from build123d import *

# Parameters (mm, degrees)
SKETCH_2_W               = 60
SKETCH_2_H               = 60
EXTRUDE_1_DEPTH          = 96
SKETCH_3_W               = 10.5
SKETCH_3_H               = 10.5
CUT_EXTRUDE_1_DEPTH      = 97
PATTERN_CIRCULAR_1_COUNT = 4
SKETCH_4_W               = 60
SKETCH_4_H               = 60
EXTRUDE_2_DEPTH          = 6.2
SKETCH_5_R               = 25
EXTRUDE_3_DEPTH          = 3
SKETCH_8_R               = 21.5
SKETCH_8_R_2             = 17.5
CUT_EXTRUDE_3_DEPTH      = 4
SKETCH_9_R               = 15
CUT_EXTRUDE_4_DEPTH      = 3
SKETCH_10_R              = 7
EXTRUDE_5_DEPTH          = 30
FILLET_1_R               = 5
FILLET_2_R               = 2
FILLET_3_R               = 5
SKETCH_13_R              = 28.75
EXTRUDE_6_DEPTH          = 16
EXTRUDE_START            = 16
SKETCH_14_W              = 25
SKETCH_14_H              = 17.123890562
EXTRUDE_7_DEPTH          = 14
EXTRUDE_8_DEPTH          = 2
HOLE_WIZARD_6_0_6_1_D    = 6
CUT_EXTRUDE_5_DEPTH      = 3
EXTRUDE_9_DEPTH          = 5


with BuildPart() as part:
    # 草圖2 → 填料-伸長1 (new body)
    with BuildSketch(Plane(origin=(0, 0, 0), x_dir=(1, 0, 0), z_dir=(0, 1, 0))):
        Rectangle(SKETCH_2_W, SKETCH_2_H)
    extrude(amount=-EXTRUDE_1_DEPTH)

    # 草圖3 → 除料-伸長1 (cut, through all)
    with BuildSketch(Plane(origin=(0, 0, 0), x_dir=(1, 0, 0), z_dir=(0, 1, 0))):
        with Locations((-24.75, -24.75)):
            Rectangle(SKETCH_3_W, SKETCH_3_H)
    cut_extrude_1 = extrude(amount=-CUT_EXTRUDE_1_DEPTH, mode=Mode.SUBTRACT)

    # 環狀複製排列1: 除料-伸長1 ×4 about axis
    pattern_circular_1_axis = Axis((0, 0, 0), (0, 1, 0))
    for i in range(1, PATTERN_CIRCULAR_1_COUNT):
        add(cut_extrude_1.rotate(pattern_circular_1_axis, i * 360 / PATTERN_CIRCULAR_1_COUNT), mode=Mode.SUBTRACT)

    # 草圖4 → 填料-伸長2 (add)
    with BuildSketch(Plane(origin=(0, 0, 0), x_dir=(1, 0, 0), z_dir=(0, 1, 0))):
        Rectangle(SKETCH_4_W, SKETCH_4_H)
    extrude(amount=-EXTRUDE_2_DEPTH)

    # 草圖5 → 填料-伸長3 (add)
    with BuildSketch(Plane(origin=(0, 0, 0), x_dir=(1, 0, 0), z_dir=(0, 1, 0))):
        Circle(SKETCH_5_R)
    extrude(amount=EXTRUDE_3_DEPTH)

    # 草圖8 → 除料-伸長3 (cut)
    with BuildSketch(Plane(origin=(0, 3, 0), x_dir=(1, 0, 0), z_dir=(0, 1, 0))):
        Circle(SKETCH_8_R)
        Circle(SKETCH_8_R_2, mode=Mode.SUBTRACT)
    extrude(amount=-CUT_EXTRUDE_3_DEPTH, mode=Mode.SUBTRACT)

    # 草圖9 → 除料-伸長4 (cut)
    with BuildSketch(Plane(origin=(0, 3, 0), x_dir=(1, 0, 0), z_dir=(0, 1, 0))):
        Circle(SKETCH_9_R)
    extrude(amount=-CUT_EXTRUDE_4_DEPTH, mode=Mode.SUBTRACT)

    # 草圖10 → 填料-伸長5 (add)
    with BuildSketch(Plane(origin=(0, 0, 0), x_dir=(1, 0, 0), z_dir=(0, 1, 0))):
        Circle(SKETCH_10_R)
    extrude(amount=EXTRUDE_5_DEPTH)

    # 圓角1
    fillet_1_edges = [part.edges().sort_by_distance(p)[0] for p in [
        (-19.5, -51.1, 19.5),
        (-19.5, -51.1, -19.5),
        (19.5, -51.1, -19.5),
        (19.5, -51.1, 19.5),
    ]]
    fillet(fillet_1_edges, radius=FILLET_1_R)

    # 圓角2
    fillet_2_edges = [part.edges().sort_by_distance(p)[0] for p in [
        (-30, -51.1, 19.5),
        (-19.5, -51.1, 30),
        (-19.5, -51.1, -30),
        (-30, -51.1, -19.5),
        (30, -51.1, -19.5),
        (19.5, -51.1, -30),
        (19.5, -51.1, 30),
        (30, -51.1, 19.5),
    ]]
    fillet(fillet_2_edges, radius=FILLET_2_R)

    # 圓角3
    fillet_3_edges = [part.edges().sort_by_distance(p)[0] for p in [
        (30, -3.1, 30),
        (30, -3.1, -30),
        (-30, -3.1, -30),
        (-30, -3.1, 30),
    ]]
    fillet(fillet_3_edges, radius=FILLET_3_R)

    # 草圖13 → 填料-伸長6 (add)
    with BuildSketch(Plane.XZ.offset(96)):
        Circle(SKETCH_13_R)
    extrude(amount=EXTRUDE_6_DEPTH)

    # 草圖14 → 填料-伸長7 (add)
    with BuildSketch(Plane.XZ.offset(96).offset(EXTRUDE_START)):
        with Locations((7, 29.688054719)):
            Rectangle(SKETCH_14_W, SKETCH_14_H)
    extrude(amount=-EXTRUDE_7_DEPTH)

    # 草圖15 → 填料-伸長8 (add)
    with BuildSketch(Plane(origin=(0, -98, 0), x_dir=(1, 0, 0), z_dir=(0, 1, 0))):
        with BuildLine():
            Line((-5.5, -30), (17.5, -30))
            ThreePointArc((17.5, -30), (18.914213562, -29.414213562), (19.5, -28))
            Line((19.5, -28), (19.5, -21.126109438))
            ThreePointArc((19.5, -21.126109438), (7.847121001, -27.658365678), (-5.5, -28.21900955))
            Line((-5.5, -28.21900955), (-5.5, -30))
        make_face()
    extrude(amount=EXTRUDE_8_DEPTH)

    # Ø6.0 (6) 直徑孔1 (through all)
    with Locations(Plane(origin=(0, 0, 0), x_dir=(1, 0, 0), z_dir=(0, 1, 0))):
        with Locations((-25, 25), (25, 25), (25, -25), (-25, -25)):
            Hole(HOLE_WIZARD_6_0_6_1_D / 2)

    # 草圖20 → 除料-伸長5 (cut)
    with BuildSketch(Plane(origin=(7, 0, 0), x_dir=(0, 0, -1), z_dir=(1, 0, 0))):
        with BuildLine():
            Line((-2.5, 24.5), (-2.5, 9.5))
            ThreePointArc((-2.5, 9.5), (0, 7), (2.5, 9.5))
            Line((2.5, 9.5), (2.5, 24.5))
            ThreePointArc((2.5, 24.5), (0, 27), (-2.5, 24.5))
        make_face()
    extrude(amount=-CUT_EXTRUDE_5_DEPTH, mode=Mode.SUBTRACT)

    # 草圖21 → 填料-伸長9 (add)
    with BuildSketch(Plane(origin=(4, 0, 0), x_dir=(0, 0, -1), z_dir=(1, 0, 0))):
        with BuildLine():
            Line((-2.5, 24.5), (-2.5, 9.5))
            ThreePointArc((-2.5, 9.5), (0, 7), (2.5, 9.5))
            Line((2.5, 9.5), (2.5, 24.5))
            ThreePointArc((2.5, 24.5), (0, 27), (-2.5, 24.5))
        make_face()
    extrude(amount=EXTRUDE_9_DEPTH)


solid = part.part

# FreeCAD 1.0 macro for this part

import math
import FreeCAD as App
import Part
import Sketcher
from FreeCAD import Vector


def edges_at(feature, points):
    """Names of the edges that pass closest to the given points."""
    edges = feature.Shape.Edges
    near = lambda p: min(range(len(edges)), key=lambda i: edges[i].distToShape(Part.Vertex(*p))[0])
    return sorted({f"Edge{near(p) + 1}" for p in points})


def add_polygon(sketch, points):
    """Adds a closed chain of lines whose ends are joined by coincident constraints."""
    first, n = sketch.GeometryCount, len(points)
    for a, b in zip(points, points[1:] + points[:1]):
        sketch.addGeometry(Part.LineSegment(App.Vector(*a, 0), App.Vector(*b, 0)), False)
    for i in range(n):
        sketch.addConstraint(Sketcher.Constraint("Coincident", first + i, 2, first + (i + 1) % n, 1))

doc = App.newDocument("Part")
body = doc.addObject("PartDesign::Body", "Body")

# Sketch on XZ plane
sketch1 = doc.addObject("Sketcher::SketchObject", "Sketch")
body.addObject(sketch1)
sketch1.AttachmentSupport = (doc.XZ_Plane, [""])
sketch1.MapMode = "FlatFace"
add_polygon(sketch1, [(-30, -30), (-30, 30), (30, 30), (30, -30)])  # lines 0-3
sketch1.addConstraint([
    Sketcher.Constraint("Vertical", 0),
    Sketcher.Constraint("Horizontal", 1),
    Sketcher.Constraint("Vertical", 2),
    Sketcher.Constraint("Horizontal", 3),
    Sketcher.Constraint("Symmetric", 0, 2, 2, 2, -1, 1),
    Sketcher.Constraint("Equal", 3, 0),
    Sketcher.Constraint("DistanceX", 1, 1, 1, 2, 60.0),
])
pad1 = doc.addObject("PartDesign::Pad", "Pad")
body.addObject(pad1)
pad1.Profile = sketch1
pad1.Length = 96

# Sketch on XZ plane
sketch2 = doc.addObject("Sketcher::SketchObject", "Sketch001")
body.addObject(sketch2)
sketch2.AttachmentSupport = (doc.XZ_Plane, [""])
sketch2.MapMode = "FlatFace"
add_polygon(sketch2, [(-30, 20), (-30, 30), (-20, 30), (-20, 20)])  # lines 0-3
sketch2.addConstraint([
    Sketcher.Constraint("Vertical", 0),
    Sketcher.Constraint("Horizontal", 1),
    Sketcher.Constraint("Vertical", 2),
    Sketcher.Constraint("Horizontal", 3),
    Sketcher.Constraint("Equal", 3, 0),
    Sketcher.Constraint("DistanceX", 1, 1, 1, 2, 10.5),
    Sketcher.Constraint("DistanceX", 0, 2, -1, 1, 30.0),
    Sketcher.Constraint("DistanceY", -1, 1, 0, 2, 30.0),
])
pocket1 = doc.addObject("PartDesign::Pocket", "Pocket")
body.addObject(pocket1)
pocket1.Profile = sketch2
pocket1.Type = "ThroughAll"
pocket1.Reversed = True
doc.recompute()

polarpattern = doc.addObject("PartDesign::PolarPattern", "PolarPattern")
body.addObject(polarpattern)
polarpattern.Originals = [pocket1]
polarpattern.Axis = (doc.Y_Axis, [""])
polarpattern.Angle = 360
polarpattern.Occurrences = 4
body.Tip = polarpattern

# Sketch on XZ plane
sketch3 = doc.addObject("Sketcher::SketchObject", "Sketch002")
body.addObject(sketch3)
sketch3.AttachmentSupport = (doc.XZ_Plane, [""])
sketch3.MapMode = "FlatFace"
add_polygon(sketch3, [(-30, -30), (-30, 30), (30, 30), (30, -30)])  # lines 0-3
sketch3.addConstraint([
    Sketcher.Constraint("Vertical", 0),
    Sketcher.Constraint("Horizontal", 1),
    Sketcher.Constraint("Vertical", 2),
    Sketcher.Constraint("Horizontal", 3),
    Sketcher.Constraint("Symmetric", 0, 2, 2, 2, -1, 1),
    Sketcher.Constraint("Equal", 3, 0),
    Sketcher.Constraint("DistanceX", 1, 1, 1, 2, 60.0),
])
pad2 = doc.addObject("PartDesign::Pad", "Pad001")
body.addObject(pad2)
pad2.Profile = sketch3
pad2.Length = 6.2

# Sketch on XZ plane
sketch4 = doc.addObject("Sketcher::SketchObject", "Sketch003")
body.addObject(sketch4)
sketch4.AttachmentSupport = (doc.XZ_Plane, [""])
sketch4.MapMode = "FlatFace"
sketch4.addGeometry(Part.Circle(Vector(0, 0, 0), Vector(0, 0, 1), 25), False)
sketch4.addConstraint([
    Sketcher.Constraint("Coincident", 0, 3, -1, 1),
    Sketcher.Constraint("Diameter", 0, 50.0),
])
pad3 = doc.addObject("PartDesign::Pad", "Pad002")
body.addObject(pad3)
pad3.Profile = sketch4
pad3.Length = 3
pad3.Reversed = True

# Sketch on XZ plane
sketch5 = doc.addObject("Sketcher::SketchObject", "Sketch004")
body.addObject(sketch5)
sketch5.AttachmentSupport = (doc.XZ_Plane, [""])
sketch5.MapMode = "FlatFace"
sketch5.AttachmentOffset = App.Placement(Vector(0, 0, -3), App.Rotation())
sketch5.addGeometry([
    Part.Circle(Vector(0, 0, 0), Vector(0, 0, 1), 22),
    Part.Circle(Vector(0, 0, 0), Vector(0, 0, 1), 18),
], False)
sketch5.addConstraint([
    Sketcher.Constraint("Coincident", 0, 3, -1, 1),
    Sketcher.Constraint("Coincident", 1, 3, -1, 1),
    Sketcher.Constraint("Diameter", 0, 43.0),
    Sketcher.Constraint("Diameter", 1, 35.0),
])
pocket2 = doc.addObject("PartDesign::Pocket", "Pocket001")
body.addObject(pocket2)
pocket2.Profile = sketch5
pocket2.Length = 4
pocket2.Reversed = True

# Sketch on XZ plane
sketch6 = doc.addObject("Sketcher::SketchObject", "Sketch005")
body.addObject(sketch6)
sketch6.AttachmentSupport = (doc.XZ_Plane, [""])
sketch6.MapMode = "FlatFace"
sketch6.AttachmentOffset = App.Placement(Vector(0, 0, -3), App.Rotation())
sketch6.addGeometry(Part.Circle(Vector(0, 0, 0), Vector(0, 0, 1), 15), False)
sketch6.addConstraint([
    Sketcher.Constraint("Coincident", 0, 3, -1, 1),
    Sketcher.Constraint("Diameter", 0, 30.0),
])
pocket3 = doc.addObject("PartDesign::Pocket", "Pocket002")
body.addObject(pocket3)
pocket3.Profile = sketch6
pocket3.Length = 3
pocket3.Reversed = True

# Sketch on XZ plane
sketch7 = doc.addObject("Sketcher::SketchObject", "Sketch006")
body.addObject(sketch7)
sketch7.AttachmentSupport = (doc.XZ_Plane, [""])
sketch7.MapMode = "FlatFace"
sketch7.addGeometry(Part.Circle(Vector(0, 0, 0), Vector(0, 0, 1), 7), False)
sketch7.addConstraint([
    Sketcher.Constraint("Coincident", 0, 3, -1, 1),
    Sketcher.Constraint("Diameter", 0, 14.0),
])
pad4 = doc.addObject("PartDesign::Pad", "Pad003")
body.addObject(pad4)
pad4.Profile = sketch7
pad4.Length = 30
pad4.Reversed = True
doc.recompute()

fillet = doc.addObject("PartDesign::Fillet", "Fillet")
body.addObject(fillet)
fillet.Base = (pad4, edges_at(pad4, [
    (-19.5, -51.1, 19.5),
    (-19.5, -51.1, -19.5),
    (19.5, -51.1, -19.5),
    (19.5, -51.1, 19.5),
]))
fillet.Radius = 5
doc.recompute()

fillet2 = doc.addObject("PartDesign::Fillet", "Fillet001")
body.addObject(fillet2)
fillet2.Base = (fillet, edges_at(fillet, [
    (-30, -51.1, 19.5),
    (-19.5, -51.1, 30),
    (-19.5, -51.1, -30),
    (-30, -51.1, -19.5),
    (30, -51.1, -19.5),
    (19.5, -51.1, -30),
    (19.5, -51.1, 30),
    (30, -51.1, 19.5),
]))
fillet2.Radius = 2
doc.recompute()

fillet3 = doc.addObject("PartDesign::Fillet", "Fillet002")
body.addObject(fillet3)
fillet3.Base = (fillet2, edges_at(fillet2, [
    (30, -3.1, 30),
    (30, -3.1, -30),
    (-30, -3.1, -30),
    (-30, -3.1, 30),
]))
fillet3.Radius = 5

# Sketch on XZ plane
sketch8 = doc.addObject("Sketcher::SketchObject", "Sketch007")
body.addObject(sketch8)
sketch8.AttachmentSupport = (doc.XZ_Plane, [""])
sketch8.MapMode = "FlatFace"
sketch8.AttachmentOffset = App.Placement(Vector(0, 0, 96), App.Rotation())
sketch8.addGeometry(Part.Circle(Vector(0, 0, 0), Vector(0, 0, 1), 29), False)
sketch8.addConstraint([
    Sketcher.Constraint("Coincident", 0, 3, -1, 1),
    Sketcher.Constraint("Diameter", 0, 57.5),
])
pad5 = doc.addObject("PartDesign::Pad", "Pad004")
body.addObject(pad5)
pad5.Profile = sketch8
pad5.Length = 16

# Sketch on XZ plane
sketch9 = doc.addObject("Sketcher::SketchObject", "Sketch008")
body.addObject(sketch9)
sketch9.AttachmentSupport = (doc.XZ_Plane, [""])
sketch9.MapMode = "FlatFace"
sketch9.AttachmentOffset = App.Placement(Vector(0, 0, 112), App.Rotation())
add_polygon(sketch9, [(-6, 38), (-6, 21), (20, 21), (20, 38)])  # lines 0-3
sketch9.addConstraint([
    Sketcher.Constraint("Vertical", 0),
    Sketcher.Constraint("Horizontal", 1),
    Sketcher.Constraint("Vertical", 2),
    Sketcher.Constraint("Horizontal", 3),
    Sketcher.Constraint("DistanceX", 1, 1, 1, 2, 25.0),
    Sketcher.Constraint("DistanceX", 0, 2, -1, 1, 5.5),
    Sketcher.Constraint("DistanceY", -1, 1, 2, 2, 38.25),
    Sketcher.Constraint("DistanceY", 0, 2, 0, 1, 17.123891),
])
pad6 = doc.addObject("PartDesign::Pad", "Pad005")
body.addObject(pad6)
pad6.Profile = sketch9
pad6.Length = 14
pad6.Reversed = True

# Sketch on XZ plane
sketch10 = doc.addObject("Sketcher::SketchObject", "Sketch009")
body.addObject(sketch10)
sketch10.AttachmentSupport = (doc.XZ_Plane, [""])
sketch10.MapMode = "FlatFace"
sketch10.AttachmentOffset = App.Placement(Vector(0, 0, 98), App.Rotation())
sketch10.addGeometry([
    Part.LineSegment(Vector(-5.5, 30, 0), Vector(17.5, 30, 0)),  # 0
    Part.ArcOfCircle(Part.Circle(Vector(17.5, 28, 0), Vector(0, 0, 1), 2), math.radians(0), math.radians(90)),  # 1
    Part.LineSegment(Vector(19.5, 28, 0), Vector(19.5, 21.1, 0)),  # 2
    Part.ArcOfCircle(Part.Circle(Vector(0, 0, 0), Vector(0, 0, 1), 28.8), math.radians(47), math.radians(101)),  # 3
    Part.LineSegment(Vector(-5.5, 28.2, 0), Vector(-5.5, 30, 0)),  # 4
], False)
sketch10.addConstraint([
    Sketcher.Constraint("Tangent", 0, 2, 1, 2),
    Sketcher.Constraint("Tangent", 1, 1, 2, 1),
    Sketcher.Constraint("Coincident", 2, 2, 3, 1),
    Sketcher.Constraint("Coincident", 3, 2, 4, 1),
    Sketcher.Constraint("Coincident", 4, 2, 0, 1),
    Sketcher.Constraint("Horizontal", 0),
    Sketcher.Constraint("Vertical", 2),
    Sketcher.Constraint("Vertical", 4),
    Sketcher.Constraint("Coincident", 3, 3, -1, 1),
    Sketcher.Constraint("Radius", 1, 2.0),
    Sketcher.Constraint("DistanceX", 0, 1, 0, 2, 23.0),
    Sketcher.Constraint("Radius", 3, 28.75),
    Sketcher.Constraint("DistanceY", -1, 1, 1, 3, 28.0),
    Sketcher.Constraint("DistanceX", -1, 1, 1, 3, 17.5),
])
pad7 = doc.addObject("PartDesign::Pad", "Pad006")
body.addObject(pad7)
pad7.Profile = sketch10
pad7.Length = 2
pad7.Reversed = True

# Sketch on XZ plane
sketch11 = doc.addObject("Sketcher::SketchObject", "Sketch010")
body.addObject(sketch11)
sketch11.AttachmentSupport = (doc.XZ_Plane, [""])
sketch11.MapMode = "FlatFace"
sketch11.addGeometry([
    Part.Circle(Vector(-25, -25, 0), Vector(0, 0, 1), 3),
    Part.Circle(Vector(25, -25, 0), Vector(0, 0, 1), 3),
    Part.Circle(Vector(25, 25, 0), Vector(0, 0, 1), 3),
    Part.Circle(Vector(-25, 25, 0), Vector(0, 0, 1), 3),
], False)
sketch11.addConstraint([
    Sketcher.Constraint("Equal", 0, 1),
    Sketcher.Constraint("Equal", 1, 2),
    Sketcher.Constraint("Equal", 2, 3),
    Sketcher.Constraint("Symmetric", 0, 3, 2, 3, -1, 1),
    Sketcher.Constraint("Symmetric", 1, 3, 3, 3, -1, 1),
    Sketcher.Constraint("Symmetric", 0, 3, 1, 3, -2),
    Sketcher.Constraint("Diameter", 0, 6.0),
    Sketcher.Constraint("DistanceX", 0, 3, -1, 1, 25.0),
    Sketcher.Constraint("DistanceY", 0, 3, -1, 1, 25.0),
])
doc.recompute()
hole = doc.addObject("PartDesign::Hole", "Hole")
body.addObject(hole)
hole.Profile = sketch11
hole.ThreadType = "None"
hole.Diameter = 6
hole.DepthType = "ThroughAll"
hole.Reversed = True

# Sketch on YZ plane
sketch12 = doc.addObject("Sketcher::SketchObject", "Sketch011")
body.addObject(sketch12)
sketch12.AttachmentSupport = (doc.YZ_Plane, [""])
sketch12.MapMode = "FlatFace"
sketch12.AttachmentOffset = App.Placement(Vector(0, 0, 7), App.Rotation())
sketch12.addGeometry([
    Part.LineSegment(Vector(24.5, 2.5, 0), Vector(9.5, 2.5, 0)),
    Part.ArcOfCircle(Part.Circle(Vector(9.5, 0, 0), Vector(0, 0, 1), 2.5), math.radians(90), math.radians(270)),
    Part.LineSegment(Vector(9.5, -2.5, 0), Vector(24.5, -2.5, 0)),
    Part.ArcOfCircle(Part.Circle(Vector(24.5, 0, 0), Vector(0, 0, 1), 2.5), math.radians(-90), math.radians(90)),
], False)
sketch12.addConstraint([
    Sketcher.Constraint("Tangent", 0, 2, 1, 1),
    Sketcher.Constraint("Tangent", 1, 2, 2, 1),
    Sketcher.Constraint("Tangent", 2, 2, 3, 1),
    Sketcher.Constraint("Tangent", 3, 2, 0, 1),
    Sketcher.Constraint("Horizontal", 0),
    Sketcher.Constraint("Horizontal", 2),
    Sketcher.Constraint("PointOnObject", 1, 3, -1),
    Sketcher.Constraint("Radius", 1, 2.5),
    Sketcher.Constraint("DistanceX", 0, 2, 0, 1, 15.0),
    Sketcher.Constraint("DistanceX", -1, 1, 1, 3, 9.5),
])
pocket4 = doc.addObject("PartDesign::Pocket", "Pocket003")
body.addObject(pocket4)
pocket4.Profile = sketch12
pocket4.Length = 3

# Sketch on YZ plane
sketch13 = doc.addObject("Sketcher::SketchObject", "Sketch012")
body.addObject(sketch13)
sketch13.AttachmentSupport = (doc.YZ_Plane, [""])
sketch13.MapMode = "FlatFace"
sketch13.AttachmentOffset = App.Placement(Vector(0, 0, 4), App.Rotation())
sketch13.addGeometry([
    Part.LineSegment(Vector(24.5, 2.5, 0), Vector(9.5, 2.5, 0)),
    Part.ArcOfCircle(Part.Circle(Vector(9.5, 0, 0), Vector(0, 0, 1), 2.5), math.radians(90), math.radians(270)),
    Part.LineSegment(Vector(9.5, -2.5, 0), Vector(24.5, -2.5, 0)),
    Part.ArcOfCircle(Part.Circle(Vector(24.5, 0, 0), Vector(0, 0, 1), 2.5), math.radians(-90), math.radians(90)),
], False)
sketch13.addConstraint([
    Sketcher.Constraint("Tangent", 0, 2, 1, 1),
    Sketcher.Constraint("Tangent", 1, 2, 2, 1),
    Sketcher.Constraint("Tangent", 2, 2, 3, 1),
    Sketcher.Constraint("Tangent", 3, 2, 0, 1),
    Sketcher.Constraint("Horizontal", 0),
    Sketcher.Constraint("Horizontal", 2),
    Sketcher.Constraint("PointOnObject", 1, 3, -1),
    Sketcher.Constraint("Radius", 1, 2.5),
    Sketcher.Constraint("DistanceX", 0, 2, 0, 1, 15.0),
    Sketcher.Constraint("DistanceX", -1, 1, 1, 3, 9.5),
])
pad8 = doc.addObject("PartDesign::Pad", "Pad007")
body.addObject(pad8)
pad8.Profile = sketch13
pad8.Length = 5

doc.recompute()
